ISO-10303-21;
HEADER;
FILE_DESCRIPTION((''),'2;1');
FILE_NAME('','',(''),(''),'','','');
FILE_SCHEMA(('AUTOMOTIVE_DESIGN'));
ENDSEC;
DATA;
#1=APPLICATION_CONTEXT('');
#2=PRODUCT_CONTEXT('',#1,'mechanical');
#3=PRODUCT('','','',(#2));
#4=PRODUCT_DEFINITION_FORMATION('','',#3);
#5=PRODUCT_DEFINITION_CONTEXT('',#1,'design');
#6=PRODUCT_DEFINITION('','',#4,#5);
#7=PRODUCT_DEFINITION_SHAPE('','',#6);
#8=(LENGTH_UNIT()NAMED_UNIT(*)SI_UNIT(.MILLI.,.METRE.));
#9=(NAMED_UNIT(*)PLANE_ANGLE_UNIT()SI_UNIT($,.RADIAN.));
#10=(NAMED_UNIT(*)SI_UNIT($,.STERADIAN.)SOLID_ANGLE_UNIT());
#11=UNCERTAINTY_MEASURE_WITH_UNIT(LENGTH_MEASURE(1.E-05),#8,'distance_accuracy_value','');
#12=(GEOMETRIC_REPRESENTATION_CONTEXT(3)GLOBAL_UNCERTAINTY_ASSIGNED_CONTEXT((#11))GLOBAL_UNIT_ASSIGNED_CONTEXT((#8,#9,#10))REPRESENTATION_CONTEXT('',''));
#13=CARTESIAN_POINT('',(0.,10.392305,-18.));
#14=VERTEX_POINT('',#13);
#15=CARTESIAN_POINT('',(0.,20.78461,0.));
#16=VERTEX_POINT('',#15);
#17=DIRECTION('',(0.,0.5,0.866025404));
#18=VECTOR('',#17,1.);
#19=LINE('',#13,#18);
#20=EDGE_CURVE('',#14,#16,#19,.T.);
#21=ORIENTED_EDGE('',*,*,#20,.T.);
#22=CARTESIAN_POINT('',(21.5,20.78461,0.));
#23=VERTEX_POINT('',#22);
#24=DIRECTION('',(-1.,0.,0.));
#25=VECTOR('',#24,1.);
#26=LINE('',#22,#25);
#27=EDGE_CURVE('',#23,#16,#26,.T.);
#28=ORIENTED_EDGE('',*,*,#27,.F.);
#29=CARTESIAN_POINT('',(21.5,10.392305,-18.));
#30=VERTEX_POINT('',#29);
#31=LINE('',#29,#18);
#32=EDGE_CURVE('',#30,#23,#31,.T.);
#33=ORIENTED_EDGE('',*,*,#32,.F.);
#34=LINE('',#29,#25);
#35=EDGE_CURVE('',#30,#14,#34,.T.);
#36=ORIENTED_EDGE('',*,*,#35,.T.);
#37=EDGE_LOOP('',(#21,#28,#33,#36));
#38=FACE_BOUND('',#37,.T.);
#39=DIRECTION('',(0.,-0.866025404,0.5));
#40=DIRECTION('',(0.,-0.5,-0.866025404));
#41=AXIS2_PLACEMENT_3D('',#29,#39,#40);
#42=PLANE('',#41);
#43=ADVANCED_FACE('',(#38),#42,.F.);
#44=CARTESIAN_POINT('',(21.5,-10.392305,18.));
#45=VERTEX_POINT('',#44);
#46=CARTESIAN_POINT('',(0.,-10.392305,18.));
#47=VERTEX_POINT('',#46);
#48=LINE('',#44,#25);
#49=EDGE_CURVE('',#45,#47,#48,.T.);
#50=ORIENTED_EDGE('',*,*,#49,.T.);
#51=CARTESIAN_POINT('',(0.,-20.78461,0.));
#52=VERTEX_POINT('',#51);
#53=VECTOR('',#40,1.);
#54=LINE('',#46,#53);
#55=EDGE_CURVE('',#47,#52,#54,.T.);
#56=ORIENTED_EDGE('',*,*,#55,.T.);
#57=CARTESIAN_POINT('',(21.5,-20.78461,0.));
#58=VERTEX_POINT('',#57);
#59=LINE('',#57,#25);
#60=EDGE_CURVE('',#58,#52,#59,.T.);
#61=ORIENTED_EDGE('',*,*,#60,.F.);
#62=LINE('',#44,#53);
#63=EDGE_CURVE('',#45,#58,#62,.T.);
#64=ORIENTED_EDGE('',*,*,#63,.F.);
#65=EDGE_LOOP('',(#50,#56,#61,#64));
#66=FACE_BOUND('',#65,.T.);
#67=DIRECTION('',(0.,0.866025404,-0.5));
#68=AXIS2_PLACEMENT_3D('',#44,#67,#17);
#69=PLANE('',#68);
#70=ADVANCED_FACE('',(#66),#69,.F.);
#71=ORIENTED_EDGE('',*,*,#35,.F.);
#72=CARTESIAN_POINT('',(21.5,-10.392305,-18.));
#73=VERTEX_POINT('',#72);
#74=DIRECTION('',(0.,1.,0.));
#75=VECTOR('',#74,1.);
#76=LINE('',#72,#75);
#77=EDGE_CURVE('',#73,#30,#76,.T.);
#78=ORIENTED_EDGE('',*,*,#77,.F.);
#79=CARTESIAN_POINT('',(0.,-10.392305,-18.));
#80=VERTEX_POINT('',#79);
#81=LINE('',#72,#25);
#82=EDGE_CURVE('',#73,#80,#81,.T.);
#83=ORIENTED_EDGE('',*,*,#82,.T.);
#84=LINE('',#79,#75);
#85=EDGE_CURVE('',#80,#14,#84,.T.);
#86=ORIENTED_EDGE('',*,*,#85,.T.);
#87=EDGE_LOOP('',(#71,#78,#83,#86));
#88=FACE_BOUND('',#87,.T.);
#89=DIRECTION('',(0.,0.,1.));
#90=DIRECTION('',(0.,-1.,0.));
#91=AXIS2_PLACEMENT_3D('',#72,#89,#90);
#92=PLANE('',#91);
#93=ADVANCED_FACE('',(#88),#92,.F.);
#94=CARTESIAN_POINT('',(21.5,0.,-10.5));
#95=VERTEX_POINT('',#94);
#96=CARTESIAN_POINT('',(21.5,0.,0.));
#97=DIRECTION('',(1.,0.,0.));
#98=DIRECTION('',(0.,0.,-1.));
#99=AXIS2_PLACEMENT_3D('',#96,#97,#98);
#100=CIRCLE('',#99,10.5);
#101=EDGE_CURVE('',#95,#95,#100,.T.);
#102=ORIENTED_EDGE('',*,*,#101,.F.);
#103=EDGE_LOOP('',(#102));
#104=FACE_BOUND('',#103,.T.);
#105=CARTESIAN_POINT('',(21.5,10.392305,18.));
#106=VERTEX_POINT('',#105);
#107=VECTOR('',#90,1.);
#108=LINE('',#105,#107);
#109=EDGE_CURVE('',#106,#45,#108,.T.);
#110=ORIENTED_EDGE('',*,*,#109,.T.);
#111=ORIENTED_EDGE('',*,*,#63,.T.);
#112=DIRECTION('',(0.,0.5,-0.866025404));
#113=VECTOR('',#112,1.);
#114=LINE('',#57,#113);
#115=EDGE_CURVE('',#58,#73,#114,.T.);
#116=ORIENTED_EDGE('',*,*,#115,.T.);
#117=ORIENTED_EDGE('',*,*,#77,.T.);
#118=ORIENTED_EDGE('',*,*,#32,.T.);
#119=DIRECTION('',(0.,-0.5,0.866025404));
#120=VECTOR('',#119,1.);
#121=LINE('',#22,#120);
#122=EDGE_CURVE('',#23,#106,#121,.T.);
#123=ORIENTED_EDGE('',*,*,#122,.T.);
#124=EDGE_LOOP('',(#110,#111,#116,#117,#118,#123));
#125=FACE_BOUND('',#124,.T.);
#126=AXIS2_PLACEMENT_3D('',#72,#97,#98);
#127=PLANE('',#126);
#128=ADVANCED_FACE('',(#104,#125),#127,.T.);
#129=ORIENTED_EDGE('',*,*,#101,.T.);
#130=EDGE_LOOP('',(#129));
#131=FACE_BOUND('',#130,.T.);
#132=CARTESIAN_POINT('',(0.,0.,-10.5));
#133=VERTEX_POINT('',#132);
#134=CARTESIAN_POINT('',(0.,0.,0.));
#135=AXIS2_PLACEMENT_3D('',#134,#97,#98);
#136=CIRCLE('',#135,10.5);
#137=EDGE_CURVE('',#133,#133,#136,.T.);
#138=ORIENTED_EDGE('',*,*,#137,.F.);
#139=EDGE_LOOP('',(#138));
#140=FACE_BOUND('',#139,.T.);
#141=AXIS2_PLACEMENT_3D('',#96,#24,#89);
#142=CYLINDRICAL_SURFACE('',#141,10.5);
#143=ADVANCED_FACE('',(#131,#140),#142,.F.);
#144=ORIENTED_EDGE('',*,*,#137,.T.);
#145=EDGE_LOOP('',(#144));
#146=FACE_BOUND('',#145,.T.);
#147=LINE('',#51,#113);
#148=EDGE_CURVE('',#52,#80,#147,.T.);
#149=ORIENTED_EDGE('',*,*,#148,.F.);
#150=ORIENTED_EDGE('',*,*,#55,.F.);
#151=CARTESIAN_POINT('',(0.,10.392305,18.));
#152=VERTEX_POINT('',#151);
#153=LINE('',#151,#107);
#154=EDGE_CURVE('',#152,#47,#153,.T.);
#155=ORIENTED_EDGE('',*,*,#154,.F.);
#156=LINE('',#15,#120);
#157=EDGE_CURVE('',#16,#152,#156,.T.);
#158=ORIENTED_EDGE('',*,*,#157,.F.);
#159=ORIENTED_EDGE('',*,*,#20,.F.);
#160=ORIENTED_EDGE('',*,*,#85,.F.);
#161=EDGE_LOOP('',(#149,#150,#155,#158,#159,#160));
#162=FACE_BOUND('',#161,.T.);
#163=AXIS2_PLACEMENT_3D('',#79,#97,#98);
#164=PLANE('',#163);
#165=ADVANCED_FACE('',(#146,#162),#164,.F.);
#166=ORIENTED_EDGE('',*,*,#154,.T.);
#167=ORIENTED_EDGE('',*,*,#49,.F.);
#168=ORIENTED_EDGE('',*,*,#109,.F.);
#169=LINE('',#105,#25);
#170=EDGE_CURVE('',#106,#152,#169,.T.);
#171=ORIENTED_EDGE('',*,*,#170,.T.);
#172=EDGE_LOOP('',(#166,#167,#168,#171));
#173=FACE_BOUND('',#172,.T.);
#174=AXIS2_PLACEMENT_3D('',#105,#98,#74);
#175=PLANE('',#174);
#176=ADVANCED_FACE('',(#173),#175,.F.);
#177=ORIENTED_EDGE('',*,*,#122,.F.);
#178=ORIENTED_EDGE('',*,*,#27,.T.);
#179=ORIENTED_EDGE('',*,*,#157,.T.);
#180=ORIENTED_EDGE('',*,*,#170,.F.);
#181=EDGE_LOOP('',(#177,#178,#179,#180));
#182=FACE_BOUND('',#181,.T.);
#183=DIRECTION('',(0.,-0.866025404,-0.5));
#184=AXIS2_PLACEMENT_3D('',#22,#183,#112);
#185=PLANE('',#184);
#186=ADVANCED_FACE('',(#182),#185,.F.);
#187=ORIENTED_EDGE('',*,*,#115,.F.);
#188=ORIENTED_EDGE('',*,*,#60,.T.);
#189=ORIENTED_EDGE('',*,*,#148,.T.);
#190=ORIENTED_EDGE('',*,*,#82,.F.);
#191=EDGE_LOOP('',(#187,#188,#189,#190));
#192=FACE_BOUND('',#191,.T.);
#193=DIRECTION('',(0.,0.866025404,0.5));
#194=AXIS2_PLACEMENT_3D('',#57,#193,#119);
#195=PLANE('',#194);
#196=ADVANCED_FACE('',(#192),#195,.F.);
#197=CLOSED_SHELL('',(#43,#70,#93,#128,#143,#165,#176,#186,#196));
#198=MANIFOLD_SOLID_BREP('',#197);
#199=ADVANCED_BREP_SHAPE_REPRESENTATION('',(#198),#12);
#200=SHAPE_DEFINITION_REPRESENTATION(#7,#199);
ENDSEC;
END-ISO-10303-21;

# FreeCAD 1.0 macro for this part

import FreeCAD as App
import Part
import Sketcher
from FreeCAD import Vector
Q = App.Units.Quantity

doc = App.newDocument("Part")
body = doc.addObject("PartDesign::Body", "Body")

# Sketch on YZ plane
sketch1 = body.newObject("Sketcher::SketchObject", "Sketch")
sketch1.AttachmentSupport = (doc.getObject("YZ_Plane"), [""])
sketch1.MapMode = "FlatFace"
sketch1.addGeometry([
    Part.LineSegment(Vector(-10, -18, 0), Vector(10, -18, 0)),  # 0
    Part.LineSegment(Vector(10, -18, 0), Vector(21, 0, 0)),  # 1
    Part.LineSegment(Vector(21, 0, 0), Vector(10, 18, 0)),  # 2
    Part.LineSegment(Vector(10, 18, 0), Vector(-10, 18, 0)),  # 3
    Part.LineSegment(Vector(-10, 18, 0), Vector(-21, 0, 0)),  # 4
    Part.LineSegment(Vector(-21, 0, 0), Vector(-10, -18, 0)),  # 5
    Part.Circle(Vector(0, 0, 0), Vector(0, 0, 1), 10),  # 6
], False)
sketch1.addConstraint([
    Sketcher.Constraint("Coincident", 0, 2, 1, 1),
    Sketcher.Constraint("Coincident", 1, 2, 2, 1),
    Sketcher.Constraint("Coincident", 2, 2, 3, 1),
    Sketcher.Constraint("Coincident", 3, 2, 4, 1),
    Sketcher.Constraint("Coincident", 4, 2, 5, 1),
    Sketcher.Constraint("Coincident", 5, 2, 0, 1),
    Sketcher.Constraint("Horizontal", 0),
    Sketcher.Constraint("Horizontal", 3),
    Sketcher.Constraint("Coincident", 6, 3, -1, 1),
    Sketcher.Constraint("Symmetric", 0, 2, 3, 2, -1, 1),
    Sketcher.Constraint("Symmetric", 1, 2, 4, 2, -1, 1),
    Sketcher.Constraint("PointOnObject", 1, 2, -1),
    Sketcher.Constraint("Parallel", 2, 5),
    Sketcher.Constraint("Vertical", 0, 2, 2, 2),
    Sketcher.Constraint("Diameter", 6, Q("21 mm")),
    Sketcher.Constraint("Angle", 1, Q("60 deg")),
    Sketcher.Constraint("DistanceY", 0, 2, -1, 1, Q("18 mm")),
    Sketcher.Constraint("DistanceX", 0, 1, 0, 2, Q("20.78461 mm")),
])
pad1 = body.newObject("PartDesign::Pad", "Pad")
pad1.Profile = sketch1
pad1.Length = 21.5

doc.recompute()
